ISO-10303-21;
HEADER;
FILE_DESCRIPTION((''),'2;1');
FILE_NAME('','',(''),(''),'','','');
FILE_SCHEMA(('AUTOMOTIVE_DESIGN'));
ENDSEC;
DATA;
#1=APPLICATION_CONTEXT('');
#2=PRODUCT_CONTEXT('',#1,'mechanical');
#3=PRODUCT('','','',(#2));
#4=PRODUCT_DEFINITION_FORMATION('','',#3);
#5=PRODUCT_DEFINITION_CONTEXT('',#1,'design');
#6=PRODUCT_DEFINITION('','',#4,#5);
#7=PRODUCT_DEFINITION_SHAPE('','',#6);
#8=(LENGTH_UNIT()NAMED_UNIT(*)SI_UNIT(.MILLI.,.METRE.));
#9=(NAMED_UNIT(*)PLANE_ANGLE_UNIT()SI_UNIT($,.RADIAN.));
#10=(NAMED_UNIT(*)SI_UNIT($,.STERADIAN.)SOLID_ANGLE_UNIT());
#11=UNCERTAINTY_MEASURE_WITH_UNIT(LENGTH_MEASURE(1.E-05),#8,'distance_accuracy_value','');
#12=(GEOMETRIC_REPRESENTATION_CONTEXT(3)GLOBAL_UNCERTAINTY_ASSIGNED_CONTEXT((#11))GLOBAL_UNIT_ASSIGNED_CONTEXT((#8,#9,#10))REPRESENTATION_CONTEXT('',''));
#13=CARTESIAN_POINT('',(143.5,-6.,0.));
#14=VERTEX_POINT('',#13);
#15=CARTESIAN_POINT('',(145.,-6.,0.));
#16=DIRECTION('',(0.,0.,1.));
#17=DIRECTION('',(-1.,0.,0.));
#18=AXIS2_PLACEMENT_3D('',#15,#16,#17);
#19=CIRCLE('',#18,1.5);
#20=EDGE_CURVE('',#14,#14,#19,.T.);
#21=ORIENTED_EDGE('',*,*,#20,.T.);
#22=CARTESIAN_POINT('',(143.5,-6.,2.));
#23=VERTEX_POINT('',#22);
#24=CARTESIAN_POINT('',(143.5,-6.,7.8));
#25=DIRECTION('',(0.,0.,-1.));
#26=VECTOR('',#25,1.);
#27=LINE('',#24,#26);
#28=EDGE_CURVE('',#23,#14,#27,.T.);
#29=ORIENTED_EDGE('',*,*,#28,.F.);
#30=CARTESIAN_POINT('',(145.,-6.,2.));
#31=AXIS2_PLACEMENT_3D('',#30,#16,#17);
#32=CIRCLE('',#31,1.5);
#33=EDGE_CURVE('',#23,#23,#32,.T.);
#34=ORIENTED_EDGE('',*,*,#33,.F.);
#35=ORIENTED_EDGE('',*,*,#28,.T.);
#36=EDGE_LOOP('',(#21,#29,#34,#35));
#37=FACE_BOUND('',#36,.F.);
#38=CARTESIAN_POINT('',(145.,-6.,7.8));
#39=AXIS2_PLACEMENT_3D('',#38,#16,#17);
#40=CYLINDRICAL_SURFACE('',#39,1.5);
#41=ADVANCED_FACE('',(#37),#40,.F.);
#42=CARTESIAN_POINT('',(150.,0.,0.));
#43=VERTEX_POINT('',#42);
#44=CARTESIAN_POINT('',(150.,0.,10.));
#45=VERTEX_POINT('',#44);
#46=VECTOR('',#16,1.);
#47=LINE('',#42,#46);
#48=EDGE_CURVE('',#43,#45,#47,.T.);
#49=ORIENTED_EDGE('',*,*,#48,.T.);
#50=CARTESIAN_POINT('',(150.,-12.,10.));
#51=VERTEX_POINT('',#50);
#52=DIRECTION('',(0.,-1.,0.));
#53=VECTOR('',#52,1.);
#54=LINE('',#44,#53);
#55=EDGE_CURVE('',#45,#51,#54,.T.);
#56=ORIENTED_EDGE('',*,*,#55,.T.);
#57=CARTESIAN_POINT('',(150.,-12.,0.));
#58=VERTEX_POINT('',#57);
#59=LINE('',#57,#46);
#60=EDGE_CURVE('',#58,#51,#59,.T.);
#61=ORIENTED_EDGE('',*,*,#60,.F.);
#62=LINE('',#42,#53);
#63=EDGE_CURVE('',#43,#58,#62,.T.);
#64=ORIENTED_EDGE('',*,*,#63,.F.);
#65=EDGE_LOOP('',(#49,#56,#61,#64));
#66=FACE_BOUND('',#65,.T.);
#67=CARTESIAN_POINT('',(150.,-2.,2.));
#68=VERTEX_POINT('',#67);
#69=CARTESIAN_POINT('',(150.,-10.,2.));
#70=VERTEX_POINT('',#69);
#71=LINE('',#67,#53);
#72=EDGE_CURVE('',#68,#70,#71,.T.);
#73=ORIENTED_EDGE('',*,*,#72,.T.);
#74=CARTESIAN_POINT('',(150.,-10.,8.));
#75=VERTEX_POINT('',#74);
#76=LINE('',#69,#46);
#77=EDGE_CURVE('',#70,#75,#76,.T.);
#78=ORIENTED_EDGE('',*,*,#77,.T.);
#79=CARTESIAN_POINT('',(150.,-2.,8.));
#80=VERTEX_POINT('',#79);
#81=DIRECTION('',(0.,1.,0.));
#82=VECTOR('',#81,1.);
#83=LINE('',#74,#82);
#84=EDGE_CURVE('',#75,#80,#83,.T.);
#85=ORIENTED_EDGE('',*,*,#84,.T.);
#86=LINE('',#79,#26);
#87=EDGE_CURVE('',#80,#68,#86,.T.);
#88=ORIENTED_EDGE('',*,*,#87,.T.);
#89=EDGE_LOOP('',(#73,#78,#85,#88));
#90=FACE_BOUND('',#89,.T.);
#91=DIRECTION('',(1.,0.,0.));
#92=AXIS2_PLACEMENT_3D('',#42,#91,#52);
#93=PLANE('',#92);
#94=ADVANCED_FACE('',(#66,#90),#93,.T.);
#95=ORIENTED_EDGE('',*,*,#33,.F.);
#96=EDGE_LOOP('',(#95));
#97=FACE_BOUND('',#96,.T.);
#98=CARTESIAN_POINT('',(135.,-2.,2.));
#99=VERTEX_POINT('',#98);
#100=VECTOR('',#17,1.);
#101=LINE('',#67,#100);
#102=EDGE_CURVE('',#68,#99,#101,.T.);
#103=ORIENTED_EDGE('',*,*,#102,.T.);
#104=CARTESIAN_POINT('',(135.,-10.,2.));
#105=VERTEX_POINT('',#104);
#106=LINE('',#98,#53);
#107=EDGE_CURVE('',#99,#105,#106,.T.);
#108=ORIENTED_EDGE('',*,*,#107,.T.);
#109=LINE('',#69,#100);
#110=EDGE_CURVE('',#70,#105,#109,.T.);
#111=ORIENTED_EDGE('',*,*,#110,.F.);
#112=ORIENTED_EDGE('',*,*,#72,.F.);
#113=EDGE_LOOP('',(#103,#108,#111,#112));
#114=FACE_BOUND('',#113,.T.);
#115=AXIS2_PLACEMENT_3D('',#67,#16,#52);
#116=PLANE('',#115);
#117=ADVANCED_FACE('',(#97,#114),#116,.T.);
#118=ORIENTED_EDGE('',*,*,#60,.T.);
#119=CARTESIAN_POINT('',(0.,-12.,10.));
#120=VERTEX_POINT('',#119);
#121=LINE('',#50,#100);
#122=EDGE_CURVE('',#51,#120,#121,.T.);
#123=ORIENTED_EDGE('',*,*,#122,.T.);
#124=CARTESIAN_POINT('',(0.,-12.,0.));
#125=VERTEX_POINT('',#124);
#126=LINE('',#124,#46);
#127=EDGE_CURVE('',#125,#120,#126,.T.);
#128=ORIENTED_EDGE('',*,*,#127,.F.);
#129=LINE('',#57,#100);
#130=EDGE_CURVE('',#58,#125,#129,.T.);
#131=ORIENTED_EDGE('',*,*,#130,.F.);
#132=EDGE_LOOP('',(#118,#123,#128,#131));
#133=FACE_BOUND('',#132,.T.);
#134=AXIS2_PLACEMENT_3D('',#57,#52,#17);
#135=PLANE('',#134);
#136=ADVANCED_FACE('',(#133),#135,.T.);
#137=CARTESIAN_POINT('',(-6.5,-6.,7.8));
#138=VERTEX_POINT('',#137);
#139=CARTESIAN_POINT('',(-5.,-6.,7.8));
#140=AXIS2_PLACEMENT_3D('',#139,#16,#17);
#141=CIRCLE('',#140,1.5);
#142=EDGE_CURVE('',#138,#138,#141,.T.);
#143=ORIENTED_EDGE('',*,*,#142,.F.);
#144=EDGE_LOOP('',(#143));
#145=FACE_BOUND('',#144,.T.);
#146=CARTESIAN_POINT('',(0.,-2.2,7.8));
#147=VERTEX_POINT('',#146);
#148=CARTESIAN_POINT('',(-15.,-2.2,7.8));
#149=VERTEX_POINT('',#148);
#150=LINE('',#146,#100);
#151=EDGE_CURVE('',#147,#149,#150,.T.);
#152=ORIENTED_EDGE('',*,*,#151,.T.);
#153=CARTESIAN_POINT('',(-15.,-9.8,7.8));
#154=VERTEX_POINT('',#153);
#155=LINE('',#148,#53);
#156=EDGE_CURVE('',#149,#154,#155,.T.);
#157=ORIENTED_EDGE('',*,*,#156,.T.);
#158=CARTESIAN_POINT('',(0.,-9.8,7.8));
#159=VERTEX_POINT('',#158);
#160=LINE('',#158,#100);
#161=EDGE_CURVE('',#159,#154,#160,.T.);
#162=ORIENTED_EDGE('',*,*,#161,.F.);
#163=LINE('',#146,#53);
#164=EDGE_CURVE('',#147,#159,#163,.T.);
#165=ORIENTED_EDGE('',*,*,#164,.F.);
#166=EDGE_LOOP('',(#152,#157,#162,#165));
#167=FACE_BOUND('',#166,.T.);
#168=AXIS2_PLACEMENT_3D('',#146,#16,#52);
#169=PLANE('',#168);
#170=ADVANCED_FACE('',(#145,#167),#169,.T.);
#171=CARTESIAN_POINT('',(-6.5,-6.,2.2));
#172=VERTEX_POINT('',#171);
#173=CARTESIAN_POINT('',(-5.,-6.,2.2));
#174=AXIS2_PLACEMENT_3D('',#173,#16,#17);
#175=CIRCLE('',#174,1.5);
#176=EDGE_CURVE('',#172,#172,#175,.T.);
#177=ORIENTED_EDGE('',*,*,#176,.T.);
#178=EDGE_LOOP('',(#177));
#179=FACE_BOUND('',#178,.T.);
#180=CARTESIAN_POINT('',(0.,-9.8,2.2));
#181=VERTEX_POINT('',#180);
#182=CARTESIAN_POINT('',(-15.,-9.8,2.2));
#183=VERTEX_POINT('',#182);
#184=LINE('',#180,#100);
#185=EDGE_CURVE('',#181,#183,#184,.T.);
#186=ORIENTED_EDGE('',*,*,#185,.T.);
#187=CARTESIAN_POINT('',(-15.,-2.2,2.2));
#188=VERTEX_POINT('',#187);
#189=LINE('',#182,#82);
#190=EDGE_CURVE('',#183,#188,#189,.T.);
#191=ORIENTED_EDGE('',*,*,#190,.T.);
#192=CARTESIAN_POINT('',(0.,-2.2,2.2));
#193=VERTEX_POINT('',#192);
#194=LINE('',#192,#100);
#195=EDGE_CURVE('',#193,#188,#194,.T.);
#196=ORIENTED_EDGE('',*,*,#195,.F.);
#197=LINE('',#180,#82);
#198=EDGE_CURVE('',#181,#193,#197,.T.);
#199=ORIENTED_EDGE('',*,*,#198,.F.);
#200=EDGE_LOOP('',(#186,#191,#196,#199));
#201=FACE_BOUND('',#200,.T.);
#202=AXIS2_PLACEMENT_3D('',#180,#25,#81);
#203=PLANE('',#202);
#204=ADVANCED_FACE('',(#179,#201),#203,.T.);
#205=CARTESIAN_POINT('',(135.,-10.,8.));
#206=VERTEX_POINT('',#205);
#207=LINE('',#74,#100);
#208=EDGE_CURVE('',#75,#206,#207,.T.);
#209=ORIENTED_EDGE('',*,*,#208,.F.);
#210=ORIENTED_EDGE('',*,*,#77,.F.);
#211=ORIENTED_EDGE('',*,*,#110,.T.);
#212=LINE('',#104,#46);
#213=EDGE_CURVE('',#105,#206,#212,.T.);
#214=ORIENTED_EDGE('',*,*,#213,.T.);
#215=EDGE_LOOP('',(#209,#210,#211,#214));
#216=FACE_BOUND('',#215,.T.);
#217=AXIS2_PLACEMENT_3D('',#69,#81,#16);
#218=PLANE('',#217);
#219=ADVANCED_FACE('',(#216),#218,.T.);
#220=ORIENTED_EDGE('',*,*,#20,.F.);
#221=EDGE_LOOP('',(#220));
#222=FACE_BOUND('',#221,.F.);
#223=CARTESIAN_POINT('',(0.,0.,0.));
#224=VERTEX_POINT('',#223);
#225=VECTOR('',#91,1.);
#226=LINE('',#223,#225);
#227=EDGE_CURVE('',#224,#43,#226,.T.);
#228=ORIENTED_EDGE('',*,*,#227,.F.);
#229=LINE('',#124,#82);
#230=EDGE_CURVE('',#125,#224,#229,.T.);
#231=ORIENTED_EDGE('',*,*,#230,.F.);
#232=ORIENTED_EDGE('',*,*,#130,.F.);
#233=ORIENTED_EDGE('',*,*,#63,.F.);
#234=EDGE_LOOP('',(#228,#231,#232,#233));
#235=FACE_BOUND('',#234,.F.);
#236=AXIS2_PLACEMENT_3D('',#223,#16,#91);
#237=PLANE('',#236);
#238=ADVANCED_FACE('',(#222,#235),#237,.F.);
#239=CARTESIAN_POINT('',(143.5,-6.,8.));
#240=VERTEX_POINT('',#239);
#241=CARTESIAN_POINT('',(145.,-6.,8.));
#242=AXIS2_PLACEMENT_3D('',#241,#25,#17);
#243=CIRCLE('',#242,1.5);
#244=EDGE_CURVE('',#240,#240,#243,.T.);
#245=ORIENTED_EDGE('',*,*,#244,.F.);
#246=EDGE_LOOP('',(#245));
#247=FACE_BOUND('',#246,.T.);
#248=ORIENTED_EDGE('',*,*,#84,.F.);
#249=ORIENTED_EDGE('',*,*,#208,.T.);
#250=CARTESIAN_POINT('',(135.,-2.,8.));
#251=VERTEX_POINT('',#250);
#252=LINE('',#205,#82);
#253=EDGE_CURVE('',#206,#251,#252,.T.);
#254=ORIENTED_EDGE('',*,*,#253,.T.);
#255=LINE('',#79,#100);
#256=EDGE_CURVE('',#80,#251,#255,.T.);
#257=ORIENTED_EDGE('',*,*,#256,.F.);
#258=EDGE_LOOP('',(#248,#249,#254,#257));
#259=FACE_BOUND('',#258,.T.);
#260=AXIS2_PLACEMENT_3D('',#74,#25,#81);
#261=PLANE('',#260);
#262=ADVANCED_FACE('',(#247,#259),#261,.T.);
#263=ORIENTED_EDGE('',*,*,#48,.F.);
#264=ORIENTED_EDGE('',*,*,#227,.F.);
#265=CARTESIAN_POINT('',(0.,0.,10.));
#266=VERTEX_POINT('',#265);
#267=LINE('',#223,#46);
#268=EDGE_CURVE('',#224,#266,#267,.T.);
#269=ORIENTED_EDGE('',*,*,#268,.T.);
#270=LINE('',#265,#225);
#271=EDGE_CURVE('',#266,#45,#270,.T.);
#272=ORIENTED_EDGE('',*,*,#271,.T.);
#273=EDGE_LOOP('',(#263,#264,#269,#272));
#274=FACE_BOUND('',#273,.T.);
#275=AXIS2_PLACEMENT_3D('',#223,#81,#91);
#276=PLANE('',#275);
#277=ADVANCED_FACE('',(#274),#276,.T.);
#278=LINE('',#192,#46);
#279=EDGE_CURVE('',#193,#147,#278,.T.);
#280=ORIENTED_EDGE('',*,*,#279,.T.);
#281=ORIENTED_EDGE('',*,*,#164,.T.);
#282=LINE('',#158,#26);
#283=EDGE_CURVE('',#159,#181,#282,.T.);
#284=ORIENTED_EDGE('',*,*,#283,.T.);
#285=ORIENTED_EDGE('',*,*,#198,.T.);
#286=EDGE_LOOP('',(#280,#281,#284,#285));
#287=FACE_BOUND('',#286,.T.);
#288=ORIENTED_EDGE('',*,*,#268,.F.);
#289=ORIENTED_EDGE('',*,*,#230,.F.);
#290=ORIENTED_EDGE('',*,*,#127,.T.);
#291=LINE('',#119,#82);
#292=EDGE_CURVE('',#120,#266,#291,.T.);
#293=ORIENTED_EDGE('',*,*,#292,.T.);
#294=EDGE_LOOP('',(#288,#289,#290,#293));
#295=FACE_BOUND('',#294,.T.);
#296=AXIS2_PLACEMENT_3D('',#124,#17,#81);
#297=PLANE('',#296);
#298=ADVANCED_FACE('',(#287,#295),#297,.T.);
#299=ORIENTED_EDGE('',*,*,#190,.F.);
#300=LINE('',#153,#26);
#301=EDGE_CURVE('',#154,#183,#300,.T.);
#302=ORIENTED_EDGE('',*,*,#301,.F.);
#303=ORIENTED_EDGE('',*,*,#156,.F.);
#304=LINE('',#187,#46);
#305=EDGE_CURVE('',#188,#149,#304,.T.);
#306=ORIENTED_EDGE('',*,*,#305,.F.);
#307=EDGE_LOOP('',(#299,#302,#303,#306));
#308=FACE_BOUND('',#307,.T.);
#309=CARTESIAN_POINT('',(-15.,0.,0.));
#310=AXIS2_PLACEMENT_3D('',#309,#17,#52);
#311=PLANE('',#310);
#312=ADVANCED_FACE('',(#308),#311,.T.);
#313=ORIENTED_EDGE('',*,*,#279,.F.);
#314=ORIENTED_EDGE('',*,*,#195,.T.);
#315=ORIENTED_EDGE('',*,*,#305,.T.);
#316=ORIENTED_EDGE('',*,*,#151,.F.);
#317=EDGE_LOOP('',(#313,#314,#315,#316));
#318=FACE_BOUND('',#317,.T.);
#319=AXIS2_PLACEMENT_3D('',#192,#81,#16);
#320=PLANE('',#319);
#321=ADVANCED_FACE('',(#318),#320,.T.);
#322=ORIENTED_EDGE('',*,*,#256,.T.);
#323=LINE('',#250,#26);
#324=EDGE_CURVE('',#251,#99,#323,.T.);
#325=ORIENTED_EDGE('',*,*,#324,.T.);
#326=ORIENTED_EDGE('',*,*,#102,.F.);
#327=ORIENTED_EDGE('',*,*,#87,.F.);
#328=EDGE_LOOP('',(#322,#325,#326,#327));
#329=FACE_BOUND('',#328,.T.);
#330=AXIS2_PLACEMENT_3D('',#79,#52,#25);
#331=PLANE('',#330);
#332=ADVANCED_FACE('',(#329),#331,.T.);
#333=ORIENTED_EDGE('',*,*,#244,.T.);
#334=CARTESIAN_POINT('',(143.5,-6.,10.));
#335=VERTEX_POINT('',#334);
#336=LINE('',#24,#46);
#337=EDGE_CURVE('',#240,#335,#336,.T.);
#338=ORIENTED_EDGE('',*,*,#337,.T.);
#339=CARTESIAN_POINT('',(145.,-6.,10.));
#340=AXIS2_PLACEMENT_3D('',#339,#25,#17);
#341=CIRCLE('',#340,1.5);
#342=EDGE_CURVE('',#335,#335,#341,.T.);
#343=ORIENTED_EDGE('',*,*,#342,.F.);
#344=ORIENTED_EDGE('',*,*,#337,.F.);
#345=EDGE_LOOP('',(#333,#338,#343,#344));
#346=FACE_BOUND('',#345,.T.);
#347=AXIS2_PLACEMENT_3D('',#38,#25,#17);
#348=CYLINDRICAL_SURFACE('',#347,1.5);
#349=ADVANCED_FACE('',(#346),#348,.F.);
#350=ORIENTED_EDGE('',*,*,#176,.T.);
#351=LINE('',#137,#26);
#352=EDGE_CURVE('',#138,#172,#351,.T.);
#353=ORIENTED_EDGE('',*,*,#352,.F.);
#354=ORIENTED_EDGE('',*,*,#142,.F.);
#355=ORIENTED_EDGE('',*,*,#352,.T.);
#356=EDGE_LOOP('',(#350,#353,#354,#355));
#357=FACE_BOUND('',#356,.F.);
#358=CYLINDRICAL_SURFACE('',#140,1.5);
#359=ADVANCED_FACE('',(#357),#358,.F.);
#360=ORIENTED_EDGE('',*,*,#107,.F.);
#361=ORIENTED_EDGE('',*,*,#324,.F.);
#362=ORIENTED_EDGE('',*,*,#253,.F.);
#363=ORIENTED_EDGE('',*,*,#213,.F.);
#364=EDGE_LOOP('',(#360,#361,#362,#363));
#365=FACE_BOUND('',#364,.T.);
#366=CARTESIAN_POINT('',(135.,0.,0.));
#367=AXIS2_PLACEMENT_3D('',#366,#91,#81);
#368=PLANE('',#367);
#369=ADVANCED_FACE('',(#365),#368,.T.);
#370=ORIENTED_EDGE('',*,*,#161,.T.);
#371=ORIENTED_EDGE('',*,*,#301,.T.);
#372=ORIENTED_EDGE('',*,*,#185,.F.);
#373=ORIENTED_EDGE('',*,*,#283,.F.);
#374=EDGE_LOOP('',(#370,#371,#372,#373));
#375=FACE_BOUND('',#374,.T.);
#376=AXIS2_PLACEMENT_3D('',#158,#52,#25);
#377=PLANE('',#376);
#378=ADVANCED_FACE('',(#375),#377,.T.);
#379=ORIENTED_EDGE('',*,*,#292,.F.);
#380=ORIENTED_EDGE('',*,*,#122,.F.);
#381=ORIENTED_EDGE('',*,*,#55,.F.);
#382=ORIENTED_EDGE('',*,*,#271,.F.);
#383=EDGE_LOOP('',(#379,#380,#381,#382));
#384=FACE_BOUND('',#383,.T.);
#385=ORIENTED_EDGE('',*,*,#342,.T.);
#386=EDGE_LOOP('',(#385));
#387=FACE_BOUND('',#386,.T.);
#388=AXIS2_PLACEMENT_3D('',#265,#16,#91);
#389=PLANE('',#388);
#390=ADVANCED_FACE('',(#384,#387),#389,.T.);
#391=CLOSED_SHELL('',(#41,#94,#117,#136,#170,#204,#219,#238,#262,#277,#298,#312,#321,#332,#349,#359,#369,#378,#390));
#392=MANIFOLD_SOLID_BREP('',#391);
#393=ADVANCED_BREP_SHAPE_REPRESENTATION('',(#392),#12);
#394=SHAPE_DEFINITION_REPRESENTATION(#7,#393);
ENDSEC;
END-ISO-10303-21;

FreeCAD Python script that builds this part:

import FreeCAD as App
import Part
import Sketcher
Q = App.Units.Quantity


def add_polygon(sketch, points):
    """Adds a closed chain of lines whose ends are joined by coincident constraints."""
    first, n = sketch.GeometryCount, len(points)
    for a, b in zip(points, points[1:] + points[:1]):
        sketch.addGeometry(Part.LineSegment(App.Vector(*a, 0), App.Vector(*b, 0)), False)
    for i in range(n):
        sketch.addConstraint(Sketcher.Constraint("Coincident", first + i, 2, first + (i + 1) % n, 1))

doc = App.newDocument("Part")
body = doc.addObject("PartDesign::Body", "Body")

# Sketch on XY plane
sketch1 = doc.addObject("Sketcher::SketchObject", "Sketch")
body.addObject(sketch1)
sketch1.AttachmentSupport = (doc.XY_Plane, [""])
sketch1.MapMode = "FlatFace"
add_polygon(sketch1, [(150, 0), (0, 0), (0, -12), (150, -12)])  # lines 0-3
sketch1.addConstraint([
    Sketcher.Constraint("Horizontal", 0),
    Sketcher.Constraint("Vertical", 1),
    Sketcher.Constraint("Horizontal", 2),
    Sketcher.Constraint("Vertical", 3),
    Sketcher.Constraint("Coincident", 0, 2, -1, 1),
    Sketcher.Constraint("DistanceX", 0, 2, 0, 1, Q("150 mm")),
    Sketcher.Constraint("DistanceY", 1, 2, 1, 1, Q("12 mm")),
])
pad1 = doc.addObject("PartDesign::Pad", "Pad")
body.addObject(pad1)
pad1.Profile = sketch1
pad1.Length = 10

# Sketch on YZ plane
sketch2 = doc.addObject("Sketcher::SketchObject", "Sketch001")
body.addObject(sketch2)
sketch2.AttachmentSupport = (doc.YZ_Plane, [""])
sketch2.MapMode = "FlatFace"
add_polygon(sketch2, [(-10, 8), (-2, 8), (-2, 2), (-10, 2)])  # lines 0-3
sketch2.addConstraint([
    Sketcher.Constraint("Horizontal", 0),
    Sketcher.Constraint("Vertical", 1),
    Sketcher.Constraint("Horizontal", 2),
    Sketcher.Constraint("Vertical", 3),
    Sketcher.Constraint("DistanceX", 0, 1, 0, 2, Q("7.6 mm")),
    Sketcher.Constraint("DistanceY", 1, 2, 1, 1, Q("5.6 mm")),
    Sketcher.Constraint("DistanceX", 0, 2, -1, 1, Q("2.2 mm")),
    Sketcher.Constraint("DistanceY", -1, 1, 1, 2, Q("2.2 mm")),
])
pad2 = doc.addObject("PartDesign::Pad", "Pad001")
body.addObject(pad2)
pad2.Profile = sketch2
pad2.Length = 15
pad2.Reversed = True

# Sketch on YZ plane
sketch3 = doc.addObject("Sketcher::SketchObject", "Sketch002")
body.addObject(sketch3)
sketch3.AttachmentSupport = (doc.YZ_Plane, [""])
sketch3.MapMode = "FlatFace"
sketch3.AttachmentOffset = App.Placement(App.Vector(0, 0, 150), App.Rotation())
add_polygon(sketch3, [(-2, 8), (-10, 8), (-10, 2), (-2, 2)])  # lines 0-3
sketch3.addConstraint([
    Sketcher.Constraint("Horizontal", 0),
    Sketcher.Constraint("Vertical", 1),
    Sketcher.Constraint("Horizontal", 2),
    Sketcher.Constraint("Vertical", 3),
    Sketcher.Constraint("DistanceX", 0, 2, 0, 1, Q("8 mm")),
    Sketcher.Constraint("DistanceY", 1, 2, 1, 1, Q("6 mm")),
    Sketcher.Constraint("DistanceY", -1, 1, 0, 2, Q("8 mm")),
    Sketcher.Constraint("DistanceX", 2, 2, -1, 1, Q("2 mm")),
])
pocket1 = doc.addObject("PartDesign::Pocket", "Pocket")
body.addObject(pocket1)
pocket1.Profile = sketch3
pocket1.Length = 15

# Sketch on XY plane
sketch4 = doc.addObject("Sketcher::SketchObject", "Sketch003")
body.addObject(sketch4)
sketch4.AttachmentSupport = (doc.XY_Plane, [""])
sketch4.MapMode = "FlatFace"
sketch4.AttachmentOffset = App.Placement(App.Vector(0, 0, 7.8), App.Rotation())
sketch4.addGeometry(Part.Circle(App.Vector(-5, -6, 0), App.Vector(0, 0, 1), 1.5), False)
sketch4.addConstraint([
    Sketcher.Constraint("Diameter", 0, Q("3 mm")),
    Sketcher.Constraint("DistanceX", 0, 3, -1, 1, Q("5 mm")),
    Sketcher.Constraint("DistanceY", 0, 3, -1, 1, Q("6 mm")),
])
pocket2 = doc.addObject("PartDesign::Pocket", "Pocket001")
body.addObject(pocket2)
pocket2.Profile = sketch4
pocket2.Length = 100

# Sketch on XY plane
sketch5 = doc.addObject("Sketcher::SketchObject", "Sketch004")
body.addObject(sketch5)
sketch5.AttachmentSupport = (doc.XY_Plane, [""])
sketch5.MapMode = "FlatFace"
sketch5.AttachmentOffset = App.Placement(App.Vector(0, 0, 7.8), App.Rotation())
sketch5.addGeometry(Part.Circle(App.Vector(145, -6, 0), App.Vector(0, 0, 1), 1.5), False)
sketch5.addConstraint([
    Sketcher.Constraint("Diameter", 0, Q("3 mm")),
    Sketcher.Constraint("DistanceY", 0, 3, -1, 1, Q("6 mm")),
    Sketcher.Constraint("DistanceX", -1, 1, 0, 3, Q("145 mm")),
])
pocket3 = doc.addObject("PartDesign::Pocket", "Pocket002")
body.addObject(pocket3)
pocket3.Profile = sketch5
pocket3.Length = 200
pocket3.Midplane = True

doc.recompute()
